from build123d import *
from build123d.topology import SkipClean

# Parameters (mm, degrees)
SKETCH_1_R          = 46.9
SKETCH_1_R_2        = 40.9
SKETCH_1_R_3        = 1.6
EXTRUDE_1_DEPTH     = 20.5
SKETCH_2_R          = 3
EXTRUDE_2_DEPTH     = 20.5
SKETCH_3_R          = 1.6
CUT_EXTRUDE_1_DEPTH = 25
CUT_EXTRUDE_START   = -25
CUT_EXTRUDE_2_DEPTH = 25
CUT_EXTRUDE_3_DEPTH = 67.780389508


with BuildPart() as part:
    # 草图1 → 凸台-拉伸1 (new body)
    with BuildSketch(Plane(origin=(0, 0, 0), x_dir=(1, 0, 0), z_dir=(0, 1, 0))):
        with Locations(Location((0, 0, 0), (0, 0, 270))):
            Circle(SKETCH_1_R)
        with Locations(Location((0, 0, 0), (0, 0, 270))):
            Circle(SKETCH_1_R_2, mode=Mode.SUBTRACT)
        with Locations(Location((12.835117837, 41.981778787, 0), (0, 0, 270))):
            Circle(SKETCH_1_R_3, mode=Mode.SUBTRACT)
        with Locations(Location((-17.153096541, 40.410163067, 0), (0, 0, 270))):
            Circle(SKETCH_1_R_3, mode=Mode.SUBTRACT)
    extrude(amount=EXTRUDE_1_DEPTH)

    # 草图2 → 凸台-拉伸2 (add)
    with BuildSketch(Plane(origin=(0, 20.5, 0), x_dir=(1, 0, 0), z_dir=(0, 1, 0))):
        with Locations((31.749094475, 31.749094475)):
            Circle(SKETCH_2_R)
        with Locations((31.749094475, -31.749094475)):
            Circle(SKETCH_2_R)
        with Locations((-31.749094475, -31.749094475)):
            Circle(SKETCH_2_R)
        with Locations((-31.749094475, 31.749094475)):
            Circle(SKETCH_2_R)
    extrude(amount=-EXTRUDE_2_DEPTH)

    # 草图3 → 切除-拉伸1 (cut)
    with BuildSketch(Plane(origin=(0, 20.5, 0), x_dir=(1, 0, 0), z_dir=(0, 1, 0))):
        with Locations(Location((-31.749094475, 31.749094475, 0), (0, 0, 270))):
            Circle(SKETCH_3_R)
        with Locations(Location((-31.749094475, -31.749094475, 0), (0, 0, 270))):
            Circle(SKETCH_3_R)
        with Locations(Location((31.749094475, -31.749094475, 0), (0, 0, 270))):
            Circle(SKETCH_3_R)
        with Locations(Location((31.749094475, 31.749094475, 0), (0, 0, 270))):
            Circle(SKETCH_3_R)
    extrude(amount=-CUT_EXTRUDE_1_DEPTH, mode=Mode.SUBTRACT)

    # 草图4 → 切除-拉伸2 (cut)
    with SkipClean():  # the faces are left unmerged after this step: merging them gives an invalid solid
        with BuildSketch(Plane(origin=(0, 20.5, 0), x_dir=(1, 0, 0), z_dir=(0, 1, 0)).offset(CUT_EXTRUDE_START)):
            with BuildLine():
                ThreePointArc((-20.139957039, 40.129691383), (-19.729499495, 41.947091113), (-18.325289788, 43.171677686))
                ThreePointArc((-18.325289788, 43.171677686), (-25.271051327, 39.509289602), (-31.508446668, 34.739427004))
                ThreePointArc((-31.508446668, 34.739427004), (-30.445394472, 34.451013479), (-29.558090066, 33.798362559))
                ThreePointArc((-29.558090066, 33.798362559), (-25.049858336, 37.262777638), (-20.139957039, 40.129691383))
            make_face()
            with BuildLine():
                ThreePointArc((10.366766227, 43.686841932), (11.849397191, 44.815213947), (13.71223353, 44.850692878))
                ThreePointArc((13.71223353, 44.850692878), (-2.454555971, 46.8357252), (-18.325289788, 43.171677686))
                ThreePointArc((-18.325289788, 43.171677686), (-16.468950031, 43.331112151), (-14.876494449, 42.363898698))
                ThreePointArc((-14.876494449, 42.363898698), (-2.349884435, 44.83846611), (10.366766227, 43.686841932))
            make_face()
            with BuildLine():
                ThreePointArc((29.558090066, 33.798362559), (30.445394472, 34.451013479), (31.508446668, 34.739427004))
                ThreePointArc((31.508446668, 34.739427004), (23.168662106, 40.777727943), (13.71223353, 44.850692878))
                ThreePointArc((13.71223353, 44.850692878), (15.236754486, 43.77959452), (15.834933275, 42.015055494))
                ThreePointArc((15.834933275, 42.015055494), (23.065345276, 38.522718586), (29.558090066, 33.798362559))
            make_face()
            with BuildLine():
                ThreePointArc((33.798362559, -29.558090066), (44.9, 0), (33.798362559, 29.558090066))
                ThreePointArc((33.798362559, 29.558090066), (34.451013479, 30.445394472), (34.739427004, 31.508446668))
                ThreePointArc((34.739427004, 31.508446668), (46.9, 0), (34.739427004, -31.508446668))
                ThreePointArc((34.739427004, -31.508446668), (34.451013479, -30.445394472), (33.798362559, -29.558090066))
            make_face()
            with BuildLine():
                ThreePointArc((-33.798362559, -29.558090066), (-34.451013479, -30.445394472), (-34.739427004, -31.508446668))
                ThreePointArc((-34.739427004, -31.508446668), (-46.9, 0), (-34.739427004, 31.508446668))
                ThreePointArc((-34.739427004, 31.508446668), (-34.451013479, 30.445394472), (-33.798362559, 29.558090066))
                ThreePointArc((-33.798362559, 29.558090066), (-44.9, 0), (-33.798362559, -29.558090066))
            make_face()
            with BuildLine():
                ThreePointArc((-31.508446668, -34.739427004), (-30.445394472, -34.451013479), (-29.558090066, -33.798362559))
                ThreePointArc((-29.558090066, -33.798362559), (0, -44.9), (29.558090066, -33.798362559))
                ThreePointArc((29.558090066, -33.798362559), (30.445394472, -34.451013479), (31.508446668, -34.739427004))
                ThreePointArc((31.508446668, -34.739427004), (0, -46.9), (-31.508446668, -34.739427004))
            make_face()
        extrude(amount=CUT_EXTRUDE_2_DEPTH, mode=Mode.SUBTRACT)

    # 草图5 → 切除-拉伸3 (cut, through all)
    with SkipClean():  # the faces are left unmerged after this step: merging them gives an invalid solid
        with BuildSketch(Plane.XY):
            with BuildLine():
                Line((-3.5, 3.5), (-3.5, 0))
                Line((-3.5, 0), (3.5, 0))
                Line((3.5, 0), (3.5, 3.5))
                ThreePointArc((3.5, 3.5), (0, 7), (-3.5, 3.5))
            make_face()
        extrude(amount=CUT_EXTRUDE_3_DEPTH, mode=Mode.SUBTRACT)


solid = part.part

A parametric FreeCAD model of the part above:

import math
import FreeCAD as App
import Part
import Sketcher

V = App.Vector

doc = App.newDocument("Part")
body = doc.addObject("PartDesign::Body", "Body")

# Sketch on XZ plane
sketch1 = body.newObject("Sketcher::SketchObject", "Sketch")
sketch1.AttachmentSupport = (doc.getObject("XZ_Plane"), [""])
sketch1.MapMode = "FlatFace"
sketch1.addGeometry([
    Part.Circle(V(0, 0, 0), V(0, 0, 1), 46.9),
    Part.Circle(V(-17.2, -40.4, 0), V(0, 0, 1), 1.6),
    Part.Circle(V(12.8, -42, 0), V(0, 0, 1), 1.6),
    Part.Circle(V(0, 0, 0), V(0, 0, 1), 40.9),
], False)
sketch1.addConstraint([
    Sketcher.Constraint("Coincident", 0, 3, -1, 1),
    Sketcher.Constraint("Coincident", 3, 3, -1, 1),
    Sketcher.Constraint("Equal", 1, 2),
    Sketcher.Constraint("Diameter", 0, 93.8),
    Sketcher.Constraint("Diameter", 1, 3.2),
    Sketcher.Constraint("Diameter", 3, 81.8),
    Sketcher.Constraint("DistanceY", 2, 3, -1, 1, 41.981779),
    Sketcher.Constraint("DistanceX", 1, 3, -1, 1, 17.153097),
    Sketcher.Constraint("DistanceY", 1, 3, -1, 1, 40.410163),
    Sketcher.Constraint("DistanceX", -1, 1, 2, 3, 12.835118),
])
pad1 = body.newObject("PartDesign::Pad", "Pad")
pad1.Profile = sketch1
pad1.Length = 20.5
pad1.Reversed = True

# Sketch on XZ plane
sketch2 = body.newObject("Sketcher::SketchObject", "Sketch001")
sketch2.AttachmentSupport = (doc.getObject("XZ_Plane"), [""])
sketch2.MapMode = "FlatFace"
sketch2.AttachmentOffset = App.Placement(V(0, 0, -20.5), App.Rotation())
sketch2.addGeometry([
    Part.Circle(V(31.7, -31.7, 0), V(0, 0, 1), 3),
    Part.Circle(V(31.7, 31.7, 0), V(0, 0, 1), 3),
    Part.Circle(V(-31.7, 31.7, 0), V(0, 0, 1), 3),
    Part.Circle(V(-31.7, -31.7, 0), V(0, 0, 1), 3),
], False)
sketch2.addConstraint([
    Sketcher.Constraint("Equal", 0, 1),
    Sketcher.Constraint("Equal", 1, 2),
    Sketcher.Constraint("Equal", 2, 3),
    Sketcher.Constraint("Symmetric", 0, 3, 2, 3, -1, 1),
    Sketcher.Constraint("Symmetric", 1, 3, 3, 3, -1, 1),
    Sketcher.Constraint("Symmetric", 1, 3, 2, 3, -2),
    Sketcher.Constraint("Diameter", 0, 6.0),
    Sketcher.Constraint("DistanceY", 0, 3, 1, 3, 63.498189),
    Sketcher.Constraint("DistanceX", 2, 3, 1, 3, 63.498189),
])
pad2 = body.newObject("PartDesign::Pad", "Pad001")
pad2.Profile = sketch2
pad2.Length = 20.5

# Sketch on XZ plane
sketch3 = body.newObject("Sketcher::SketchObject", "Sketch002")
sketch3.AttachmentSupport = (doc.getObject("XZ_Plane"), [""])
sketch3.MapMode = "FlatFace"
sketch3.AttachmentOffset = App.Placement(V(0, 0, -20.5), App.Rotation())
sketch3.addGeometry([
    Part.Circle(V(-31.7, -31.7, 0), V(0, 0, 1), 1.6),
    Part.Circle(V(-31.7, 31.7, 0), V(0, 0, 1), 1.6),
    Part.Circle(V(31.7, 31.7, 0), V(0, 0, 1), 1.6),
    Part.Circle(V(31.7, -31.7, 0), V(0, 0, 1), 1.6),
], False)
sketch3.addConstraint([
    Sketcher.Constraint("Equal", 0, 1),
    Sketcher.Constraint("Equal", 1, 2),
    Sketcher.Constraint("Equal", 2, 3),
    Sketcher.Constraint("Symmetric", 0, 3, 2, 3, -1, 1),
    Sketcher.Constraint("Symmetric", 1, 3, 3, 3, -1, 1),
    Sketcher.Constraint("Symmetric", 1, 3, 2, 3, -2),
    Sketcher.Constraint("Diameter", 0, 3.2),
    Sketcher.Constraint("DistanceY", 0, 3, 1, 3, 63.498189),
    Sketcher.Constraint("DistanceX", 1, 3, 2, 3, 63.498189),
])
pocket1 = body.newObject("PartDesign::Pocket", "Pocket")
pocket1.Profile = sketch3
pocket1.Length = 25
pocket1.Reversed = True

# Sketch on XZ plane
sketch4 = body.newObject("Sketcher::SketchObject", "Sketch003")
sketch4.AttachmentSupport = (doc.getObject("XZ_Plane"), [""])
sketch4.MapMode = "FlatFace"
sketch4.AttachmentOffset = App.Placement(V(0, 0, 4.5), App.Rotation())
sketch4.addGeometry([
    Part.ArcOfCircle(Part.Circle(V(-17.2, -40.4, 0), V(0, 0, 1), 3), math.radians(175), math.radians(247)),  # 0
    Part.ArcOfCircle(Part.Circle(V(0, 0, 0), V(0, 0, 1), 46.9), math.radians(-132.21), math.radians(-113)),  # 1
    Part.ArcOfCircle(Part.Circle(V(-31.7, -31.7, 0), V(0, 0, 1), 3), math.radians(-85), math.radians(-43)),  # 2
    Part.ArcOfCircle(Part.Circle(V(0, 0, 0), V(0, 0, 1), 44.9), math.radians(-131.17), math.radians(-116.65)),  # 3
    Part.ArcOfCircle(Part.Circle(V(12.8, -42, 0), V(0, 0, 1), 3), math.radians(-145), math.radians(-73)),  # 4
    Part.ArcOfCircle(Part.Circle(V(0, 0, 0), V(0, 0, 1), 46.9), math.radians(-113), math.radians(-73)),  # 5
    Part.ArcOfCircle(Part.Circle(V(-17.2, -40.4, 0), V(0, 0, 1), 3), math.radians(-113), math.radians(-41)),  # 6
    Part.ArcOfCircle(Part.Circle(V(0, 0, 0), V(0, 0, 1), 44.9), math.radians(-109), math.radians(-77)),  # 7
    Part.ArcOfCircle(Part.Circle(V(31.7, -31.7, 0), V(0, 0, 1), 3), math.radians(-137), math.radians(-95)),  # 8
    Part.ArcOfCircle(Part.Circle(V(0, 0, 0), V(0, 0, 1), 46.9), math.radians(-73), math.radians(-48)),  # 9
    Part.ArcOfCircle(Part.Circle(V(12.8, -42, 0), V(0, 0, 1), 3), math.radians(-73), math.radians(-1)),  # 10
    Part.ArcOfCircle(Part.Circle(V(0, 0, 0), V(0, 0, 1), 44.9), math.radians(-69), math.radians(-49)),  # 11
    Part.ArcOfCircle(Part.Circle(V(0, 0, 0), V(0, 0, 1), 44.9), math.radians(-41), math.radians(41)),  # 12
    Part.ArcOfCircle(Part.Circle(V(31.7, 31.7, 0), V(0, 0, 1), 3), math.radians(-47), math.radians(-5)),  # 13
    Part.ArcOfCircle(Part.Circle(V(0, 0, 0), V(0, 0, 1), 46.9), math.radians(-42), math.radians(42)),  # 14
    Part.ArcOfCircle(Part.Circle(V(31.7, -31.7, 0), V(0, 0, 1), 3), math.radians(5), math.radians(47)),  # 15
    Part.ArcOfCircle(Part.Circle(V(-31.7, 31.7, 0), V(0, 0, 1), 3), math.radians(-175), math.radians(-133)),  # 16
    Part.ArcOfCircle(Part.Circle(V(0, 0, 0), V(0, 0, 1), 44.9), math.radians(139), math.radians(221)),  # 17
    Part.ArcOfCircle(Part.Circle(V(-31.7, -31.7, 0), V(0, 0, 1), 3), math.radians(133), math.radians(175)),  # 18
    Part.ArcOfCircle(Part.Circle(V(0, 0, 0), V(0, 0, 1), 46.9), math.radians(138), math.radians(222)),  # 19
    Part.ArcOfCircle(Part.Circle(V(-31.7, 31.7, 0), V(0, 0, 1), 3), math.radians(43), math.radians(85)),  # 20
    Part.ArcOfCircle(Part.Circle(V(0, 0, 0), V(0, 0, 1), 46.9), math.radians(48), math.radians(132)),  # 21
    Part.ArcOfCircle(Part.Circle(V(31.7, 31.7, 0), V(0, 0, 1), 3), math.radians(95), math.radians(137)),  # 22
    Part.ArcOfCircle(Part.Circle(V(0, 0, 0), V(0, 0, 1), 44.9), math.radians(49), math.radians(131)),  # 23
], False)
sketch4.addConstraint([
    Sketcher.Constraint("Tangent", 0, 2, 1, 2),
    Sketcher.Constraint("Coincident", 1, 1, 2, 1),
    Sketcher.Constraint("Coincident", 2, 2, 3, 1),
    Sketcher.Constraint("Coincident", 3, 2, 0, 1),
    Sketcher.Constraint("Tangent", 4, 2, 5, 2),
    Sketcher.Constraint("Tangent", 5, 1, 6, 1),
    Sketcher.Constraint("Coincident", 6, 2, 7, 1),
    Sketcher.Constraint("Coincident", 7, 2, 4, 1),
    Sketcher.Constraint("Coincident", 8, 2, 9, 2),
    Sketcher.Constraint("Tangent", 9, 1, 10, 1),
    Sketcher.Constraint("Coincident", 10, 2, 11, 1),
    Sketcher.Constraint("Coincident", 11, 2, 8, 1),
    Sketcher.Constraint("Coincident", 12, 2, 13, 1),
    Sketcher.Constraint("Coincident", 13, 2, 14, 2),
    Sketcher.Constraint("Coincident", 14, 1, 15, 1),
    Sketcher.Constraint("Coincident", 15, 2, 12, 1),
    Sketcher.Constraint("Coincident", 16, 2, 17, 1),
    Sketcher.Constraint("Coincident", 17, 2, 18, 1),
    Sketcher.Constraint("Coincident", 18, 2, 19, 2),
    Sketcher.Constraint("Coincident", 19, 1, 16, 1),
    Sketcher.Constraint("Coincident", 20, 2, 21, 2),
    Sketcher.Constraint("Coincident", 21, 1, 22, 1),
    Sketcher.Constraint("Coincident", 22, 2, 23, 1),
    Sketcher.Constraint("Coincident", 23, 2, 20, 1),
    Sketcher.Constraint("Coincident", 1, 3, -1, 1),
    Sketcher.Constraint("Coincident", 3, 3, -1, 1),
    Sketcher.Constraint("Coincident", 5, 3, -1, 1),
    Sketcher.Constraint("Coincident", 7, 3, -1, 1),
    Sketcher.Constraint("Coincident", 9, 3, -1, 1),
    Sketcher.Constraint("Coincident", 11, 3, -1, 1),
    Sketcher.Constraint("Coincident", 12, 3, -1, 1),
    Sketcher.Constraint("Coincident", 14, 3, -1, 1),
    Sketcher.Constraint("Coincident", 17, 3, -1, 1),
    Sketcher.Constraint("Coincident", 19, 3, -1, 1),
    Sketcher.Constraint("Coincident", 21, 3, -1, 1),
    Sketcher.Constraint("Coincident", 23, 3, -1, 1),
    Sketcher.Constraint("Coincident", 6, 3, 0, 3),
    Sketcher.Constraint("Coincident", 10, 3, 4, 3),
    Sketcher.Constraint("Coincident", 15, 3, 8, 3),
    Sketcher.Constraint("Coincident", 18, 3, 2, 3),
    Sketcher.Constraint("Coincident", 20, 3, 16, 3),
    Sketcher.Constraint("Coincident", 22, 3, 13, 3),
    Sketcher.Constraint("Equal", 0, 2),
    Sketcher.Constraint("Equal", 2, 4),
    Sketcher.Constraint("Equal", 1, 5),
    Sketcher.Constraint("Equal", 3, 7),
    Sketcher.Constraint("Equal", 6, 8),
    Sketcher.Constraint("Equal", 5, 9),
    Sketcher.Constraint("Equal", 7, 11),
    Sketcher.Constraint("Equal", 11, 12),
    Sketcher.Constraint("Equal", 10, 13),
    Sketcher.Constraint("Equal", 9, 14),
    Sketcher.Constraint("Equal", 13, 15),
    Sketcher.Constraint("Equal", 15, 16),
    Sketcher.Constraint("Equal", 12, 17),
    Sketcher.Constraint("Equal", 16, 18),
    Sketcher.Constraint("Equal", 14, 19),
    Sketcher.Constraint("Equal", 18, 20),
    Sketcher.Constraint("Equal", 19, 21),
    Sketcher.Constraint("Equal", 20, 22),
    Sketcher.Constraint("Equal", 17, 23),
    Sketcher.Constraint("Symmetric", 2, 3, 13, 3, -1, 1),
    Sketcher.Constraint("Symmetric", 8, 3, 16, 3, -1, 1),
    Sketcher.Constraint("Symmetric", 2, 3, 8, 3, -2),
    Sketcher.Constraint("Radius", 0, 3.0),
    Sketcher.Constraint("Radius", 1, 46.9),
    Sketcher.Constraint("Radius", 3, 44.9),
    Sketcher.Constraint("DistanceY", 6, 2, -1, 1, 42.363899),
    Sketcher.Constraint("DistanceY", 0, 2, 4, 3, 1.189899),
    Sketcher.Constraint("DistanceY", 6, 3, 2, 2, 6.611801),
    Sketcher.Constraint("DistanceY", 4, 2, 8, 3, 13.101598),
])
pocket2 = body.newObject("PartDesign::Pocket", "Pocket001")
pocket2.Profile = sketch4
pocket2.Length = 25

# Sketch on XY plane
sketch5 = body.newObject("Sketcher::SketchObject", "Sketch004")
sketch5.AttachmentSupport = (doc.getObject("XY_Plane"), [""])
sketch5.MapMode = "FlatFace"
sketch5.addGeometry([
    Part.LineSegment(V(-3.5, 3.5, 0), V(-3.5, 0, 0)),
    Part.LineSegment(V(-3.5, 0, 0), V(3.5, 0, 0)),
    Part.LineSegment(V(3.5, 0, 0), V(3.5, 3.5, 0)),
    Part.ArcOfCircle(Part.Circle(V(0, 3.5, 0), V(0, 0, 1), 3.5), math.radians(0), math.radians(180)),
], False)
sketch5.addConstraint([
    Sketcher.Constraint("Coincident", 0, 2, 1, 1),
    Sketcher.Constraint("Coincident", 1, 2, 2, 1),
    Sketcher.Constraint("Tangent", 2, 2, 3, 1),
    Sketcher.Constraint("Tangent", 3, 2, 0, 1),
    Sketcher.Constraint("Vertical", 0),
    Sketcher.Constraint("Horizontal", 1),
    Sketcher.Constraint("Vertical", 2),
    Sketcher.Constraint("Symmetric", 0, 2, 1, 2, -1, 1),
    Sketcher.Constraint("Radius", 3, 3.5),
    Sketcher.Constraint("DistanceY", 0, 2, 0, 1, 3.5),
])
pocket3 = body.newObject("PartDesign::Pocket", "Pocket002")
pocket3.Profile = sketch5
pocket3.Type = "ThroughAll"
pocket3.Reversed = True

doc.recompute()
